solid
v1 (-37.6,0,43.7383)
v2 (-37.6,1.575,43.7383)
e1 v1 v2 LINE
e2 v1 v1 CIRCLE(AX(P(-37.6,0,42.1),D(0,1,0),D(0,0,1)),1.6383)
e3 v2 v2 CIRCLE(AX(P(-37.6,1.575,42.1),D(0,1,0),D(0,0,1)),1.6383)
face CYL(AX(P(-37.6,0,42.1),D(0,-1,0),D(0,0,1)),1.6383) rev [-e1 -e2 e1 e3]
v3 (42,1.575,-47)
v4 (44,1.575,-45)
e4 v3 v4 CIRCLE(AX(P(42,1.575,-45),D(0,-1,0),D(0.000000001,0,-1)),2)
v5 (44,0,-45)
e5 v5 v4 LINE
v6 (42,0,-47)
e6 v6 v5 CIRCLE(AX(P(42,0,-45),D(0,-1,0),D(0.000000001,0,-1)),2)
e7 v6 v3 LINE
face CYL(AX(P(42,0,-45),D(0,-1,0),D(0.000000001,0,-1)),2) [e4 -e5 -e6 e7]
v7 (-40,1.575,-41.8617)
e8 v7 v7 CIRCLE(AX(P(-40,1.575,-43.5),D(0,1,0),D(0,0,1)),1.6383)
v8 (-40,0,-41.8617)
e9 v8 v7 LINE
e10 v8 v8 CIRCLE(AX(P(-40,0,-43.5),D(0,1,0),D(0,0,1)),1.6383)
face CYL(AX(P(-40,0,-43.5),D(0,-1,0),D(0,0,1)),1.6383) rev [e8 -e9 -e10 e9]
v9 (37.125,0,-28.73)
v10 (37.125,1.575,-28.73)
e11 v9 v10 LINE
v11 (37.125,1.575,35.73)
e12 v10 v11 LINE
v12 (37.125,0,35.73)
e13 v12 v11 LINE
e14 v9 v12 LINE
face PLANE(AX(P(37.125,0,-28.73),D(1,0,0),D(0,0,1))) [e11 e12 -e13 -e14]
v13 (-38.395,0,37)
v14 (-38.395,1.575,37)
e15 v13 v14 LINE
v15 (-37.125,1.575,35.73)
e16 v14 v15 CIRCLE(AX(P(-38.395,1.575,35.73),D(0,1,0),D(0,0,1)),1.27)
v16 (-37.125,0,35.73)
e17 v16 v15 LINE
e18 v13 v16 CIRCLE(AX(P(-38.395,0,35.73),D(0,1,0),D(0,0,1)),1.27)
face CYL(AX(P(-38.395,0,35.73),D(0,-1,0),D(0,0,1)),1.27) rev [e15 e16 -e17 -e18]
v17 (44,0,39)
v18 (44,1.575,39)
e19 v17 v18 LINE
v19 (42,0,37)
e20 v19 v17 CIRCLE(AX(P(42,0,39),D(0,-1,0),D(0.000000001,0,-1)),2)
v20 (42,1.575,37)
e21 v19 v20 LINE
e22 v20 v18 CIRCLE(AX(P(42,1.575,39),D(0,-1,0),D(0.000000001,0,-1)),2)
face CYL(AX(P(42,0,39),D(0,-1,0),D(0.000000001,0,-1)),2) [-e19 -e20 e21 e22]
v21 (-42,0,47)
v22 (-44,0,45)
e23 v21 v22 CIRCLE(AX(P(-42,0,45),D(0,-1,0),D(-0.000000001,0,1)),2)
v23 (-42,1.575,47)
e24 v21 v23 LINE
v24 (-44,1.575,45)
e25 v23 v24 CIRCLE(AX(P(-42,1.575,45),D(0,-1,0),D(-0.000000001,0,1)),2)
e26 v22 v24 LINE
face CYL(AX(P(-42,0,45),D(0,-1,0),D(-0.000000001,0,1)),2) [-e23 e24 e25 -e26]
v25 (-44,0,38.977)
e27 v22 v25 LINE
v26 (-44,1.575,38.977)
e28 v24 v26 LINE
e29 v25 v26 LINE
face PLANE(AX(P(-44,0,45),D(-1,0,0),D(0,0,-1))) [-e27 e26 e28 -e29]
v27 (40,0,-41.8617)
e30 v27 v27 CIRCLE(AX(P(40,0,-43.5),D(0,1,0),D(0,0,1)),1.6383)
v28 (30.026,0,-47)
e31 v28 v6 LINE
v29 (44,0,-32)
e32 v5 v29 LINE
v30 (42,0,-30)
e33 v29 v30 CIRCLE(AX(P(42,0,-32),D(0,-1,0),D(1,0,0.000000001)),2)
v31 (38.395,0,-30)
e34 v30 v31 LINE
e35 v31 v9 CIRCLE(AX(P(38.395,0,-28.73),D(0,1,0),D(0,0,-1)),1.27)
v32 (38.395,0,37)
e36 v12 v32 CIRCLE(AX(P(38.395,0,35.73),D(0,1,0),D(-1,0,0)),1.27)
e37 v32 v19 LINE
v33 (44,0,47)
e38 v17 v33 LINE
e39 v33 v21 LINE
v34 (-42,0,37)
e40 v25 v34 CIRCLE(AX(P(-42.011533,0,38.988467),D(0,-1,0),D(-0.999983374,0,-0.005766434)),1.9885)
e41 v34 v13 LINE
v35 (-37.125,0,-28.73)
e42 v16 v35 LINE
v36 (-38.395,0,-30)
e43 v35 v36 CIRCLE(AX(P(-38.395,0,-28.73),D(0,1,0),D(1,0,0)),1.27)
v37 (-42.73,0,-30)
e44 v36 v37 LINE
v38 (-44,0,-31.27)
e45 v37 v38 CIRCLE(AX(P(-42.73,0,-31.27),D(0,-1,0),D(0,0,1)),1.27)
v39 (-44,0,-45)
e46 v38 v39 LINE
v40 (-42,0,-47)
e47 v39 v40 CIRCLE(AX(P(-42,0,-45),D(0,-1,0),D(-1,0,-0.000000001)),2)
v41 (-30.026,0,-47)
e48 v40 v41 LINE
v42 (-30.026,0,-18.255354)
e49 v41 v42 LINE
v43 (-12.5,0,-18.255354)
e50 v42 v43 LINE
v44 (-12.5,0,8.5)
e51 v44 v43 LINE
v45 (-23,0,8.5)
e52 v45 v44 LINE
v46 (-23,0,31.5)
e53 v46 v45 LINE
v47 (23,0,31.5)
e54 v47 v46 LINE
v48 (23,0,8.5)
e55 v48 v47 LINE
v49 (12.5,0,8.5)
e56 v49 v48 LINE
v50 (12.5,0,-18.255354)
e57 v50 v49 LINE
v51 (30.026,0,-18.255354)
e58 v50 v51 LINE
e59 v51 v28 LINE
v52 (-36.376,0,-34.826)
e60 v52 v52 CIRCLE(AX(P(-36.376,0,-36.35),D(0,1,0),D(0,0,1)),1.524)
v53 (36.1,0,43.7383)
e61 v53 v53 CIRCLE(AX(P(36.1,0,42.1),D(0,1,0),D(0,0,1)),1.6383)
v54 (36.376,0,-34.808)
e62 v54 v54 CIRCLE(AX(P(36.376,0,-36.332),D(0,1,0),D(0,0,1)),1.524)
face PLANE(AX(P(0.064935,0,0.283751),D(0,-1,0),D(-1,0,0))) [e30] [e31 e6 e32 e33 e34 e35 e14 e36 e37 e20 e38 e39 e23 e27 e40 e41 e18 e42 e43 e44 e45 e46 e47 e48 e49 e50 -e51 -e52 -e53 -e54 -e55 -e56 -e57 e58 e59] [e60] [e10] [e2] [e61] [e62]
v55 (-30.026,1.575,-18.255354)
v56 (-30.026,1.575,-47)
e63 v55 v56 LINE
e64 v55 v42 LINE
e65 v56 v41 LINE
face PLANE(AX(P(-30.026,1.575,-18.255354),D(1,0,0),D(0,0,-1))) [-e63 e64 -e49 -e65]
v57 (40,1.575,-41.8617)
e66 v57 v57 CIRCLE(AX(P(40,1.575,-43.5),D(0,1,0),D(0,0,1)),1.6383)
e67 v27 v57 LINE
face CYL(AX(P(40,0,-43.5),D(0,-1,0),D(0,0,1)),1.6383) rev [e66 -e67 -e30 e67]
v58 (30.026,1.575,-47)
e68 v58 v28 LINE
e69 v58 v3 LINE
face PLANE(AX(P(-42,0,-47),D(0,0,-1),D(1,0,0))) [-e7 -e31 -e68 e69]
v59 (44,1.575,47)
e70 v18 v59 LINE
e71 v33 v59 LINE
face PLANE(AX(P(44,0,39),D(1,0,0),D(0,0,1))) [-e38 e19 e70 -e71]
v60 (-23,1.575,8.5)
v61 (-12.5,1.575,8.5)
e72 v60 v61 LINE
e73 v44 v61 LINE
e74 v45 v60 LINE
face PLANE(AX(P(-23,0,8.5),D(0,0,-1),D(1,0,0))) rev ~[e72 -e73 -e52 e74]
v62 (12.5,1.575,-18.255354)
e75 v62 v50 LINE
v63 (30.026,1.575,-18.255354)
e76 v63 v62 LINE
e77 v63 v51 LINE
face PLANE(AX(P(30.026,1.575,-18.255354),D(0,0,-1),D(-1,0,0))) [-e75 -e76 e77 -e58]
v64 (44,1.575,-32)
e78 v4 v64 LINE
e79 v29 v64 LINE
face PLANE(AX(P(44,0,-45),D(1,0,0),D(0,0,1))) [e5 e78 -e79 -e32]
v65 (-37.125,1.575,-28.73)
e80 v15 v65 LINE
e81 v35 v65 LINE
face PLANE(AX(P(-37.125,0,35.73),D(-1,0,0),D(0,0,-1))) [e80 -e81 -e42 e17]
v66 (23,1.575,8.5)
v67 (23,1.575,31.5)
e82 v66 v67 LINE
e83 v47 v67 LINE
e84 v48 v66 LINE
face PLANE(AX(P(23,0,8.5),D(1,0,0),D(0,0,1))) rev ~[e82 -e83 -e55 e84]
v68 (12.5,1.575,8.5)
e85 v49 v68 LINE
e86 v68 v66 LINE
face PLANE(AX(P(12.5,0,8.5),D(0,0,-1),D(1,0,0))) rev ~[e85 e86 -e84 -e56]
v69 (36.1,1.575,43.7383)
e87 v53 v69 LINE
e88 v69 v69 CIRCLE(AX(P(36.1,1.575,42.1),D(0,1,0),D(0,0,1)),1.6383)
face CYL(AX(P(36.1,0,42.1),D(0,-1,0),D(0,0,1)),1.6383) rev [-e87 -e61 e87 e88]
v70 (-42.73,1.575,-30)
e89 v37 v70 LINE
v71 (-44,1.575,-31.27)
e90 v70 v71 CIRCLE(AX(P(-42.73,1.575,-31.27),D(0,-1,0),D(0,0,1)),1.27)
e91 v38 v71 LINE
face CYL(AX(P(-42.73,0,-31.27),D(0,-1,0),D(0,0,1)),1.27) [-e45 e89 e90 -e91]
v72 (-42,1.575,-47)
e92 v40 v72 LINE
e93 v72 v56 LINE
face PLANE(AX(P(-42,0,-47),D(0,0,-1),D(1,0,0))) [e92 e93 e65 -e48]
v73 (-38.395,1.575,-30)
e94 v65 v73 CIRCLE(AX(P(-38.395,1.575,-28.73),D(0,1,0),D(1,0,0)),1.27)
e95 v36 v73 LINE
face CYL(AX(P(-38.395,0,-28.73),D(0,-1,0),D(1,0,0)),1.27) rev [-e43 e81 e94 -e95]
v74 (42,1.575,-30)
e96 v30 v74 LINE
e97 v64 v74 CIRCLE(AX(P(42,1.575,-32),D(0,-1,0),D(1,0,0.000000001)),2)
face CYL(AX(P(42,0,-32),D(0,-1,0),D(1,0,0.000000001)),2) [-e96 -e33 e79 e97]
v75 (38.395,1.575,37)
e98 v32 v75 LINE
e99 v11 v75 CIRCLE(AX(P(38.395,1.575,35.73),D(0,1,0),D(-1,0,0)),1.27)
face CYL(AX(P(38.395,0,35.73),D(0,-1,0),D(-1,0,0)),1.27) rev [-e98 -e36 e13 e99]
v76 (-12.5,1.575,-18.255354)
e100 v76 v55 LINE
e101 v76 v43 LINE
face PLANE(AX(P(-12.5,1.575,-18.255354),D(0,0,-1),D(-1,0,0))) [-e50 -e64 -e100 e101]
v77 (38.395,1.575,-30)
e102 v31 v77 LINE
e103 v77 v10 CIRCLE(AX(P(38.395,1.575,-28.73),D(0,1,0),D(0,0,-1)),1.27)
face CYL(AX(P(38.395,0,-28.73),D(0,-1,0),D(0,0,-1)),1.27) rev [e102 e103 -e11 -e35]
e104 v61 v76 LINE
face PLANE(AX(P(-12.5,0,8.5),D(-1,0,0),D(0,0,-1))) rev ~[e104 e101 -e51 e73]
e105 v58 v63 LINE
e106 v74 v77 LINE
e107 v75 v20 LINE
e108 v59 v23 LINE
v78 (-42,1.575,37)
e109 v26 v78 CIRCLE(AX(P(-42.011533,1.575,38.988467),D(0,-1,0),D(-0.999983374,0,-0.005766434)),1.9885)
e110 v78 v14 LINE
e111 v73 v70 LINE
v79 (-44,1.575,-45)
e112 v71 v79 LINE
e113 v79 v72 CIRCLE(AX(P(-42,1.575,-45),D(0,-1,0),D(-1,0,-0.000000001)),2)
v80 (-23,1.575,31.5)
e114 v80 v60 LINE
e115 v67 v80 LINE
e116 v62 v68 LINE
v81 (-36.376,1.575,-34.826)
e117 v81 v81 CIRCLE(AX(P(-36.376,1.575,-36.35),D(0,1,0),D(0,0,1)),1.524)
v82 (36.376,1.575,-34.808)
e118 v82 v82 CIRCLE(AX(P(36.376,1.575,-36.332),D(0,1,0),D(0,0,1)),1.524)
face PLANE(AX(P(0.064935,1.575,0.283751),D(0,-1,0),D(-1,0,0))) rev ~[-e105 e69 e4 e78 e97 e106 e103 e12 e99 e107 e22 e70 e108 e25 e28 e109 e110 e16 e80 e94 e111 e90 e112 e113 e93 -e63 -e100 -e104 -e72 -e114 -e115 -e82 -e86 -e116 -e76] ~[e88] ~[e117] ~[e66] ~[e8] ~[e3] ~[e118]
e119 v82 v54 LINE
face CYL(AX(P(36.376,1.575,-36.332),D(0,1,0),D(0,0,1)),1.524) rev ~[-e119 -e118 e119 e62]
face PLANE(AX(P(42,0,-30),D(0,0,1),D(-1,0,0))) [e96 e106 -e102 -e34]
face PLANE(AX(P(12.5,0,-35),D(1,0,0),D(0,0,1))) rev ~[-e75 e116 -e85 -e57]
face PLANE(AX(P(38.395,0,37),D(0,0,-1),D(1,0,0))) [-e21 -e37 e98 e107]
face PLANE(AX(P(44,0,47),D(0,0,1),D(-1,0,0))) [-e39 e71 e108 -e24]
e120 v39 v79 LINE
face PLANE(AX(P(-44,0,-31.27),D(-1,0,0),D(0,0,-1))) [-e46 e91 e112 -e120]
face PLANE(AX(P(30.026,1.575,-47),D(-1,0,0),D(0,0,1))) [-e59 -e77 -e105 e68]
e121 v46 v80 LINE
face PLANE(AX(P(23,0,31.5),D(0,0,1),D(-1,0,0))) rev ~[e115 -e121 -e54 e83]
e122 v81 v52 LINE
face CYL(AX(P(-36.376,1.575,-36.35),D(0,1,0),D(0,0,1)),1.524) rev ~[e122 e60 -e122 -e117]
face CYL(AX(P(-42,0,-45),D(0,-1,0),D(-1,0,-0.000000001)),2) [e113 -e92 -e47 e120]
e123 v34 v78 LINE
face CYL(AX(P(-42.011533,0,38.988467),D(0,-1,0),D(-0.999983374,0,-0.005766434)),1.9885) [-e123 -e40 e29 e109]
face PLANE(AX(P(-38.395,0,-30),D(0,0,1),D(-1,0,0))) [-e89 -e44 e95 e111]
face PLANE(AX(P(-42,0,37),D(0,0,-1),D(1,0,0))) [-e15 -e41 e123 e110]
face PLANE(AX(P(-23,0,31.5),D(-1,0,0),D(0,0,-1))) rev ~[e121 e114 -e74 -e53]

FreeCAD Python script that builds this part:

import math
import FreeCAD as App
import Part
import Sketcher
from FreeCAD import Vector

doc = App.newDocument("Part")
body = doc.addObject("PartDesign::Body", "Body")

sketch1 = body.newObject("Sketcher::SketchObject", "Sketch")
sketch1.AttachmentSupport = (doc.getObject("XZ_Plane"), [""])
sketch1.MapMode = "FlatFace"
sketch1.addGeometry(Part.LineSegment(Vector(-42.7, -30, 0), Vector(-38.4, -30, 0)), False)
sketch1.addGeometry(Part.ArcOfCircle(Part.Circle(Vector(-38.4, -28.7, 0), Vector(0, 0, 1), 1.3), math.radians(-90), math.radians(0)), False)
sketch1.addGeometry(Part.LineSegment(Vector(-37.1, -28.7, 0), Vector(-37.1, 35.7, 0)), False)
sketch1.addGeometry(Part.ArcOfCircle(Part.Circle(Vector(-38.4, 35.7, 0), Vector(0, 0, 1), 1.3), math.radians(0), math.radians(90)), False)
sketch1.addGeometry(Part.LineSegment(Vector(-38.4, 37, 0), Vector(-42, 37, 0)), False)
sketch1.addGeometry(Part.ArcOfCircle(Part.Circle(Vector(-42, 39, 0), Vector(0, 0, 1), 2), math.radians(-180), math.radians(-90)), False)
sketch1.addGeometry(Part.LineSegment(Vector(-44, 39, 0), Vector(-44, 45, 0)), False)
sketch1.addGeometry(Part.ArcOfCircle(Part.Circle(Vector(-42, 45, 0), Vector(0, 0, 1), 2), math.radians(90), math.radians(180)), False)
sketch1.addGeometry(Part.LineSegment(Vector(-42, 47, 0), Vector(44, 47, 0)), False)
sketch1.addGeometry(Part.LineSegment(Vector(44, 47, 0), Vector(44, 39, 0)), False)
sketch1.addGeometry(Part.ArcOfCircle(Part.Circle(Vector(42, 39, 0), Vector(0, 0, 1), 2), math.radians(-90), math.radians(0)), False)
sketch1.addGeometry(Part.LineSegment(Vector(42, 37, 0), Vector(38.4, 37, 0)), False)
sketch1.addGeometry(Part.ArcOfCircle(Part.Circle(Vector(38.4, 35.7, 0), Vector(0, 0, 1), 1.3), math.radians(90), math.radians(180)), False)
sketch1.addGeometry(Part.LineSegment(Vector(37.1, 35.7, 0), Vector(37.1, -28.7, 0)), False)
sketch1.addGeometry(Part.ArcOfCircle(Part.Circle(Vector(38.4, -28.7, 0), Vector(0, 0, 1), 1.3), math.radians(180), math.radians(270)), False)
sketch1.addGeometry(Part.LineSegment(Vector(38.4, -30, 0), Vector(42, -30, 0)), False)
sketch1.addGeometry(Part.ArcOfCircle(Part.Circle(Vector(42, -32, 0), Vector(0, 0, 1), 2), math.radians(0), math.radians(90)), False)
sketch1.addGeometry(Part.LineSegment(Vector(44, -32, 0), Vector(44, -45, 0)), False)
sketch1.addGeometry(Part.ArcOfCircle(Part.Circle(Vector(42, -45, 0), Vector(0, 0, 1), 2), math.radians(-90), math.radians(0)), False)
sketch1.addGeometry(Part.LineSegment(Vector(42, -47, 0), Vector(-42, -47, 0)), False)
sketch1.addGeometry(Part.ArcOfCircle(Part.Circle(Vector(-42, -45, 0), Vector(0, 0, 1), 2), math.radians(-180), math.radians(-90)), False)
sketch1.addGeometry(Part.LineSegment(Vector(-44, -45, 0), Vector(-44, -31.3, 0)), False)
sketch1.addGeometry(Part.ArcOfCircle(Part.Circle(Vector(-42.7, -31.3, 0), Vector(0, 0, 1), 1.3), math.radians(90), math.radians(180)), False)
sketch1.addGeometry(Part.Circle(Vector(36.1, 42.1, 0), Vector(0, 0, 1), 1.6), False)
sketch1.addGeometry(Part.Circle(Vector(-37.6, 42.1, 0), Vector(0, 0, 1), 1.6), False)
sketch1.addGeometry(Part.Circle(Vector(40, -43.5, 0), Vector(0, 0, 1), 1.6), False)
sketch1.addGeometry(Part.LineSegment(Vector(23, 31.5, 0), Vector(-23, 31.5, 0)), False)
sketch1.addGeometry(Part.LineSegment(Vector(-23, 31.5, 0), Vector(-23, 8.5, 0)), False)
sketch1.addGeometry(Part.LineSegment(Vector(-23, 8.5, 0), Vector(-12.5, 8.5, 0)), False)
sketch1.addGeometry(Part.LineSegment(Vector(-12.5, 8.5, 0), Vector(-12.5, -35, 0)), False)
sketch1.addGeometry(Part.LineSegment(Vector(-12.5, -35, 0), Vector(12.5, -35, 0)), False)
sketch1.addGeometry(Part.LineSegment(Vector(12.5, -35, 0), Vector(12.5, 8.5, 0)), False)
sketch1.addGeometry(Part.LineSegment(Vector(12.5, 8.5, 0), Vector(23, 8.5, 0)), False)
sketch1.addGeometry(Part.LineSegment(Vector(23, 8.5, 0), Vector(23, 31.5, 0)), False)
sketch1.addGeometry(Part.Circle(Vector(-40, -43.5, 0), Vector(0, 0, 1), 1.6), False)
sketch1.addConstraint(Sketcher.Constraint("Tangent", 0, 2, 1, 1))
sketch1.addConstraint(Sketcher.Constraint("Tangent", 1, 2, 2, 1))
sketch1.addConstraint(Sketcher.Constraint("Tangent", 2, 2, 3, 1))
sketch1.addConstraint(Sketcher.Constraint("Tangent", 3, 2, 4, 1))
sketch1.addConstraint(Sketcher.Constraint("Coincident", 4, 2, 5, 2))
sketch1.addConstraint(Sketcher.Constraint("Coincident", 5, 1, 6, 1))
sketch1.addConstraint(Sketcher.Constraint("Tangent", 6, 2, 7, 2))
sketch1.addConstraint(Sketcher.Constraint("Tangent", 7, 1, 8, 1))
sketch1.addConstraint(Sketcher.Constraint("Coincident", 8, 2, 9, 1))
sketch1.addConstraint(Sketcher.Constraint("Tangent", 9, 2, 10, 2))
sketch1.addConstraint(Sketcher.Constraint("Tangent", 10, 1, 11, 1))
sketch1.addConstraint(Sketcher.Constraint("Tangent", 11, 2, 12, 1))
sketch1.addConstraint(Sketcher.Constraint("Tangent", 12, 2, 13, 1))
sketch1.addConstraint(Sketcher.Constraint("Tangent", 13, 2, 14, 1))
sketch1.addConstraint(Sketcher.Constraint("Tangent", 14, 2, 15, 1))
sketch1.addConstraint(Sketcher.Constraint("Tangent", 15, 2, 16, 2))
sketch1.addConstraint(Sketcher.Constraint("Tangent", 16, 1, 17, 1))
sketch1.addConstraint(Sketcher.Constraint("Tangent", 17, 2, 18, 2))
sketch1.addConstraint(Sketcher.Constraint("Tangent", 18, 1, 19, 1))
sketch1.addConstraint(Sketcher.Constraint("Tangent", 19, 2, 20, 2))
sketch1.addConstraint(Sketcher.Constraint("Tangent", 20, 1, 21, 1))
sketch1.addConstraint(Sketcher.Constraint("Tangent", 21, 2, 22, 2))
sketch1.addConstraint(Sketcher.Constraint("Tangent", 22, 1, 0, 1))
sketch1.addConstraint(Sketcher.Constraint("Coincident", 26, 2, 27, 1))
sketch1.addConstraint(Sketcher.Constraint("Coincident", 27, 2, 28, 1))
sketch1.addConstraint(Sketcher.Constraint("Coincident", 28, 2, 29, 1))
sketch1.addConstraint(Sketcher.Constraint("Coincident", 29, 2, 30, 1))
sketch1.addConstraint(Sketcher.Constraint("Coincident", 30, 2, 31, 1))
sketch1.addConstraint(Sketcher.Constraint("Coincident", 31, 2, 32, 1))
sketch1.addConstraint(Sketcher.Constraint("Coincident", 32, 2, 33, 1))
sketch1.addConstraint(Sketcher.Constraint("Coincident", 33, 2, 26, 1))
sketch1.addConstraint(Sketcher.Constraint("Horizontal", 0))
sketch1.addConstraint(Sketcher.Constraint("Vertical", 2))
sketch1.addConstraint(Sketcher.Constraint("Horizontal", 4))
sketch1.addConstraint(Sketcher.Constraint("Vertical", 6))
sketch1.addConstraint(Sketcher.Constraint("Horizontal", 8))
sketch1.addConstraint(Sketcher.Constraint("Vertical", 9))
sketch1.addConstraint(Sketcher.Constraint("Horizontal", 11))
sketch1.addConstraint(Sketcher.Constraint("Vertical", 13))
sketch1.addConstraint(Sketcher.Constraint("Horizontal", 15))
sketch1.addConstraint(Sketcher.Constraint("Vertical", 17))
sketch1.addConstraint(Sketcher.Constraint("Horizontal", 19))
sketch1.addConstraint(Sketcher.Constraint("Vertical", 21))
sketch1.addConstraint(Sketcher.Constraint("Horizontal", 26))
sketch1.addConstraint(Sketcher.Constraint("Vertical", 27))
sketch1.addConstraint(Sketcher.Constraint("Horizontal", 28))
sketch1.addConstraint(Sketcher.Constraint("Vertical", 29))
sketch1.addConstraint(Sketcher.Constraint("Horizontal", 30))
sketch1.addConstraint(Sketcher.Constraint("Vertical", 31))
sketch1.addConstraint(Sketcher.Constraint("Horizontal", 32))
sketch1.addConstraint(Sketcher.Constraint("Vertical", 33))
sketch1.addConstraint(Sketcher.Constraint("Equal", 1, 3))
sketch1.addConstraint(Sketcher.Constraint("Equal", 7, 10))
sketch1.addConstraint(Sketcher.Constraint("Equal", 3, 12))
sketch1.addConstraint(Sketcher.Constraint("Equal", 12, 14))
sketch1.addConstraint(Sketcher.Constraint("Equal", 10, 16))
sketch1.addConstraint(Sketcher.Constraint("Equal", 16, 18))
sketch1.addConstraint(Sketcher.Constraint("Equal", 18, 20))
sketch1.addConstraint(Sketcher.Constraint("Equal", 14, 22))
sketch1.addConstraint(Sketcher.Constraint("Equal", 23, 24))
sketch1.addConstraint(Sketcher.Constraint("Equal", 24, 25))
sketch1.addConstraint(Sketcher.Constraint("Equal", 25, 34))
sketch1.addConstraint(Sketcher.Constraint("Symmetric", 7, 3, 18, 3, -1, 1))
sketch1.addConstraint(Sketcher.Constraint("Symmetric", 3, 3, 12, 3, -2))
sketch1.addConstraint(Sketcher.Constraint("Symmetric", 25, 3, 34, 3, -2))
sketch1.addConstraint(Sketcher.Constraint("Symmetric", 28, 2, 31, 2, -2))
sketch1.addConstraint(Sketcher.Constraint("Horizontal", 1, 3, 14, 3))
sketch1.addConstraint(Sketcher.Constraint("Horizontal", 23, 3, 24, 3))
sketch1.addConstraint(Sketcher.Constraint("Vertical", 10, 3, 16, 3))
sketch1.addConstraint(Sketcher.Constraint("Vertical", 7, 3, 20, 3))
sketch1.addConstraint(Sketcher.Constraint("Vertical", 20, 3, 4, 2))
sketch1.addConstraint(Sketcher.Constraint("Equal", 28, 32))
sketch1.addConstraint(Sketcher.Constraint("Radius", 7, 2.0))
sketch1.addConstraint(Sketcher.Constraint("DistanceX", 8, 1, 8, 2, 86.0))
sketch1.addConstraint(Sketcher.Constraint("DistanceX", 26, 2, 26, 1, 46.0))
sketch1.addConstraint(Sketcher.Constraint("DistanceX", 30, 1, 30, 2, 25.0))
sketch1.addConstraint(Sketcher.Constraint("DistanceY", 9, 2, 9, 1, 8.0))
sketch1.addConstraint(Sketcher.Constraint("DistanceY", 17, 2, 17, 1, 13.0))
sketch1.addConstraint(Sketcher.Constraint("DistanceY", 27, 2, 27, 1, 23.0))
sketch1.addConstraint(Sketcher.Constraint("Radius", 1, 1.27))
sketch1.addConstraint(Sketcher.Constraint("DistanceY", 29, 2, 29, 1, 43.5))
sketch1.addConstraint(Sketcher.Constraint("DistanceY", -1, 1, 7, 3, 45.0))
sketch1.addConstraint(Sketcher.Constraint("DistanceX", -1, 1, 25, 3, 40.0))
sketch1.addConstraint(Sketcher.Constraint("DistanceY", 29, 2, -1, 1, 35.0))
sketch1.addConstraint(Sketcher.Constraint("Diameter", 23, 3.2766))
sketch1.addConstraint(Sketcher.Constraint("DistanceX", -1, 1, 23, 3, 36.1))
sketch1.addConstraint(Sketcher.Constraint("DistanceY", -1, 1, 23, 3, 42.1))
sketch1.addConstraint(Sketcher.Constraint("DistanceX", 24, 3, -1, 1, 37.6))
sketch1.addConstraint(Sketcher.Constraint("DistanceY", 25, 3, -1, 1, 43.5))
sketch1.addConstraint(Sketcher.Constraint("Radius", 5, 1.9885))
sketch1.addConstraint(Sketcher.Constraint("DistanceX", 0, 1, 0, 2, 4.335))
sketch1.addConstraint(Sketcher.Constraint("DistanceY", 6, 1, 6, 2, 6.023))
pad1 = body.newObject("PartDesign::Pad", "Pad")
pad1.Profile = sketch1
pad1.Length = 1.575
pad1.Reversed = True

sketch2 = body.newObject("Sketcher::SketchObject", "Sketch001")
sketch2.AttachmentSupport = (doc.getObject("XZ_Plane"), [""])
sketch2.MapMode = "FlatFace"
sketch2.AttachmentOffset = App.Placement(Vector(0, 0, -1.575), App.Rotation())
sketch2.addGeometry(Part.LineSegment(Vector(-30, -18, 0), Vector(-12, -18, 0)), False)
sketch2.addGeometry(Part.LineSegment(Vector(-12, -18, 0), Vector(-12, -35, 0)), False)
sketch2.addGeometry(Part.LineSegment(Vector(-12, -35, 0), Vector(12, -35, 0)), False)
sketch2.addGeometry(Part.LineSegment(Vector(12, -35, 0), Vector(12, -18, 0)), False)
sketch2.addGeometry(Part.LineSegment(Vector(12, -18, 0), Vector(30, -18, 0)), False)
sketch2.addGeometry(Part.LineSegment(Vector(30, -18, 0), Vector(30, -47, 0)), False)
sketch2.addGeometry(Part.LineSegment(Vector(30, -47, 0), Vector(-30, -47, 0)), False)
sketch2.addGeometry(Part.LineSegment(Vector(-30, -47, 0), Vector(-30, -18, 0)), False)
sketch2.addConstraint(Sketcher.Constraint("Coincident", 0, 2, 1, 1))
sketch2.addConstraint(Sketcher.Constraint("Coincident", 1, 2, 2, 1))
sketch2.addConstraint(Sketcher.Constraint("Coincident", 2, 2, 3, 1))
sketch2.addConstraint(Sketcher.Constraint("Coincident", 3, 2, 4, 1))
sketch2.addConstraint(Sketcher.Constraint("Coincident", 4, 2, 5, 1))
sketch2.addConstraint(Sketcher.Constraint("Coincident", 5, 2, 6, 1))
sketch2.addConstraint(Sketcher.Constraint("Coincident", 6, 2, 7, 1))
sketch2.addConstraint(Sketcher.Constraint("Coincident", 7, 2, 0, 1))
sketch2.addConstraint(Sketcher.Constraint("Horizontal", 0))
sketch2.addConstraint(Sketcher.Constraint("Vertical", 1))
sketch2.addConstraint(Sketcher.Constraint("Horizontal", 2))
sketch2.addConstraint(Sketcher.Constraint("Vertical", 3))
sketch2.addConstraint(Sketcher.Constraint("Horizontal", 4))
sketch2.addConstraint(Sketcher.Constraint("Vertical", 5))
sketch2.addConstraint(Sketcher.Constraint("Horizontal", 6))
sketch2.addConstraint(Sketcher.Constraint("Vertical", 7))
sketch2.addConstraint(Sketcher.Constraint("Symmetric", 0, 2, 3, 2, -2))
sketch2.addConstraint(Sketcher.Constraint("Equal", 0, 4))
sketch2.addConstraint(Sketcher.Constraint("DistanceX", 2, 1, 2, 2, 25.0))
sketch2.addConstraint(Sketcher.Constraint("DistanceY", 1, 2, -1, 1, 35.0))
sketch2.addConstraint(Sketcher.Constraint("DistanceY", 5, 2, -1, 1, 47.0))
sketch2.addConstraint(Sketcher.Constraint("DistanceX", 0, 1, 0, 2, 17.526))
sketch2.addConstraint(Sketcher.Constraint("DistanceY", 1, 2, 1, 1, 16.744646))
pocket1 = body.newObject("PartDesign::Pocket", "Pocket")
pocket1.Profile = sketch2
pocket1.Length = 2.54
pocket1.Reversed = True

sketch3 = body.newObject("Sketcher::SketchObject", "Sketch002")
sketch3.AttachmentSupport = (doc.getObject("XZ_Plane"), [""])
sketch3.MapMode = "FlatFace"
sketch3.AttachmentOffset = App.Placement(Vector(0, 0, -1.575), App.Rotation())
sketch3.addGeometry(Part.Circle(Vector(-36.4, -36.4, 0), Vector(0, 0, 1), 1.5), False)
sketch3.addGeometry(Part.Circle(Vector(36.4, -36.3, 0), Vector(0, 0, 1), 1.5), False)
sketch3.addConstraint(Sketcher.Constraint("Equal", 0, 1))
sketch3.addConstraint(Sketcher.Constraint("Diameter", 0, 3.048))
sketch3.addConstraint(Sketcher.Constraint("DistanceY", 0, 3, -1, 1, 36.35))
sketch3.addConstraint(Sketcher.Constraint("DistanceX", 0, 3, -1, 1, 36.376))
sketch3.addConstraint(Sketcher.Constraint("DistanceX", -1, 1, 1, 3, 36.376))
sketch3.addConstraint(Sketcher.Constraint("DistanceY", 1, 3, -1, 1, 36.332))
pocket2 = body.newObject("PartDesign::Pocket", "Pocket001")
pocket2.Profile = sketch3
pocket2.Length = 1.575
pocket2.Reversed = True

doc.recompute()
